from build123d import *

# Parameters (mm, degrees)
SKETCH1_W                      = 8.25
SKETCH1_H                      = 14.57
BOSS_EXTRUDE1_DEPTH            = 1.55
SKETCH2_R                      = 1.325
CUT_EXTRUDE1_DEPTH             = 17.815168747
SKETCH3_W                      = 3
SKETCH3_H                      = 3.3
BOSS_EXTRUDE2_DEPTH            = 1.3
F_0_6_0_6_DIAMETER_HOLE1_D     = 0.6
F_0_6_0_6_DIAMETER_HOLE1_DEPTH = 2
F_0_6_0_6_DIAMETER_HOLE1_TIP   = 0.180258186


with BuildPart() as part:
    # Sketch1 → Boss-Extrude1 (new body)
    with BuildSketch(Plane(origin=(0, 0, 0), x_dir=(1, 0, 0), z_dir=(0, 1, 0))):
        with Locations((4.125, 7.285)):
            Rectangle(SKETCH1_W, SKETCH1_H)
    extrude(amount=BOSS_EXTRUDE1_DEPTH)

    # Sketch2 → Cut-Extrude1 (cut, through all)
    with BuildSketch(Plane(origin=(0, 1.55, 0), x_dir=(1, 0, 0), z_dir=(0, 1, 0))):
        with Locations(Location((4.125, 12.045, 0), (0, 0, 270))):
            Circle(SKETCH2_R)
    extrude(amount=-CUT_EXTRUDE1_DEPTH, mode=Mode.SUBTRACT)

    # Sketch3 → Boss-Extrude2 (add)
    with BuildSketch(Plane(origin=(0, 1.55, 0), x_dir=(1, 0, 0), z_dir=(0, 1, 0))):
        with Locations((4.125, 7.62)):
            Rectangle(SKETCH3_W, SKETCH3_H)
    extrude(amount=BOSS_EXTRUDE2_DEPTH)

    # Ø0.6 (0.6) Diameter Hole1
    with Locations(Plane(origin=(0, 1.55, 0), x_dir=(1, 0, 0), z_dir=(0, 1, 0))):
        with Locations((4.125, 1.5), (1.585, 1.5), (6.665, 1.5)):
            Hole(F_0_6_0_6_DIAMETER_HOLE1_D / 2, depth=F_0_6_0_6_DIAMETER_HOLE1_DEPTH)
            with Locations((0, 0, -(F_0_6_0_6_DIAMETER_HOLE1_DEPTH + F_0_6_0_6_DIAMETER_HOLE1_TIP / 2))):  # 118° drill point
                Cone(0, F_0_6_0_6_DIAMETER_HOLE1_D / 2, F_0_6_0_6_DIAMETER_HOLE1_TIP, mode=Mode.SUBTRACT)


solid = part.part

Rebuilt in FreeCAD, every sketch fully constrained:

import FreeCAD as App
import Part
import Sketcher
from FreeCAD import Vector

doc = App.newDocument("Part")
params = doc.addObject("Spreadsheet::Sheet", "Params")
for row, (alias, value) in enumerate([
    ("sketch1_width", "8.25 mm"),
    ("sketch1_height", "14.57 mm"),
    ("pad1_length", "1.55 mm"),
    ("sketch2_diameter", "2.65 mm"),
    ("sketch3_width", "3 mm"),
    ("sketch3_height", "3.3 mm"),
    ("pad2_length", "1.3 mm"),
    ("sketch4_diameter", "0.6 mm"),
    ("hole_diameter", "0.6 mm"),
    ("hole_depth", "2 mm"),
], start=1):
    params.set(f"A{row}", alias)
    params.set(f"B{row}", "=" + value)
    params.setAlias(f"B{row}", alias)

body = doc.addObject("PartDesign::Body", "Body")

sketch1 = body.newObject("Sketcher::SketchObject", "Sketch")
sketch1.AttachmentSupport = (doc.getObject("XZ_Plane"), [""])
sketch1.MapMode = "FlatFace"
sketch1.addGeometry([
    Part.LineSegment(Vector(0, -14.57, 0), Vector(0, 0, 0)),
    Part.LineSegment(Vector(0, 0, 0), Vector(8.25, 0, 0)),
    Part.LineSegment(Vector(8.25, 0, 0), Vector(8.25, -14.57, 0)),
    Part.LineSegment(Vector(8.25, -14.57, 0), Vector(0, -14.57, 0)),
], False)
sketch1.addConstraint([
    Sketcher.Constraint("Coincident", 0, 2, 1, 1),
    Sketcher.Constraint("Coincident", 1, 2, 2, 1),
    Sketcher.Constraint("Coincident", 2, 2, 3, 1),
    Sketcher.Constraint("Coincident", 3, 2, 0, 1),
    Sketcher.Constraint("Vertical", 0),
    Sketcher.Constraint("Horizontal", 1),
    Sketcher.Constraint("Vertical", 2),
    Sketcher.Constraint("Horizontal", 3),
    Sketcher.Constraint("Coincident", 0, 2, -1, 1),
    Sketcher.Constraint("DistanceX", 1, 1, 1, 2, 8.25),
    Sketcher.Constraint("DistanceY", 0, 1, 0, 2, 14.57),
])
sketch1.setExpression("Constraints[9]", "Params.sketch1_width")
sketch1.setExpression("Constraints[10]", "Params.sketch1_height")
pad1 = body.newObject("PartDesign::Pad", "Pad")
pad1.Profile = sketch1
pad1.setExpression("Length", "Params.pad1_length")
pad1.Reversed = True

sketch2 = body.newObject("Sketcher::SketchObject", "Sketch001")
sketch2.AttachmentSupport = (doc.getObject("XZ_Plane"), [""])
sketch2.MapMode = "FlatFace"
sketch2.AttachmentOffset = App.Placement(Vector(0, 0, -1.55), App.Rotation())
sketch2.addGeometry(Part.Circle(Vector(4.125, -12.045, 0), Vector(0, 0, 1), 1.325), False)
sketch2.addConstraint([
    Sketcher.Constraint("Diameter", 0, 2.65),
    Sketcher.Constraint("DistanceX", -1, 1, 0, 3, 4.125),
    Sketcher.Constraint("DistanceY", 0, 3, -1, 1, 12.045),
])
sketch2.setExpression("Constraints[0]", "Params.sketch2_diameter")
pocket1 = body.newObject("PartDesign::Pocket", "Pocket")
pocket1.Profile = sketch2
pocket1.Type = "ThroughAll"
pocket1.Reversed = True

sketch3 = body.newObject("Sketcher::SketchObject", "Sketch002")
sketch3.AttachmentSupport = (doc.getObject("XZ_Plane"), [""])
sketch3.MapMode = "FlatFace"
sketch3.AttachmentOffset = App.Placement(Vector(0, 0, -1.55), App.Rotation())
sketch3.addGeometry([
    Part.LineSegment(Vector(2.625, -9.27, 0), Vector(2.625, -5.97, 0)),
    Part.LineSegment(Vector(2.625, -5.97, 0), Vector(5.625, -5.97, 0)),
    Part.LineSegment(Vector(5.625, -5.97, 0), Vector(5.625, -9.27, 0)),
    Part.LineSegment(Vector(5.625, -9.27, 0), Vector(2.625, -9.27, 0)),
], False)
sketch3.addConstraint([
    Sketcher.Constraint("Coincident", 0, 2, 1, 1),
    Sketcher.Constraint("Coincident", 1, 2, 2, 1),
    Sketcher.Constraint("Coincident", 2, 2, 3, 1),
    Sketcher.Constraint("Coincident", 3, 2, 0, 1),
    Sketcher.Constraint("Vertical", 0),
    Sketcher.Constraint("Horizontal", 1),
    Sketcher.Constraint("Vertical", 2),
    Sketcher.Constraint("Horizontal", 3),
    Sketcher.Constraint("DistanceX", 1, 1, 1, 2, 3.0),
    Sketcher.Constraint("DistanceY", 0, 1, 0, 2, 3.3),
    Sketcher.Constraint("DistanceY", 0, 2, -1, 1, 5.97),
    Sketcher.Constraint("DistanceX", -1, 1, 0, 2, 2.625),
])
sketch3.setExpression("Constraints[8]", "Params.sketch3_width")
sketch3.setExpression("Constraints[9]", "Params.sketch3_height")
pad2 = body.newObject("PartDesign::Pad", "Pad001")
pad2.Profile = sketch3
pad2.setExpression("Length", "Params.pad2_length")
pad2.Reversed = True

sketch4 = body.newObject("Sketcher::SketchObject", "Sketch003")
sketch4.AttachmentSupport = (doc.getObject("XZ_Plane"), [""])
sketch4.MapMode = "FlatFace"
sketch4.AttachmentOffset = App.Placement(Vector(0, 0, -1.55), App.Rotation())
sketch4.addGeometry([
    Part.Circle(Vector(4.125, -1.5, 0), Vector(0, 0, 1), 0.3),
    Part.Circle(Vector(1.585, -1.5, 0), Vector(0, 0, 1), 0.3),
    Part.Circle(Vector(6.665, -1.5, 0), Vector(0, 0, 1), 0.3),
], False)
sketch4.addConstraint([
    Sketcher.Constraint("Equal", 0, 1),
    Sketcher.Constraint("Equal", 1, 2),
    Sketcher.Constraint("Horizontal", 0, 3, 1, 3),
    Sketcher.Constraint("Horizontal", 1, 3, 2, 3),
    Sketcher.Constraint("Diameter", 0, 0.6),
    Sketcher.Constraint("DistanceY", 0, 3, -1, 1, 1.5),
    Sketcher.Constraint("DistanceX", 1, 3, 0, 3, 2.54),
    Sketcher.Constraint("DistanceX", 0, 3, 2, 3, 2.54),
    Sketcher.Constraint("DistanceX", -1, 1, 0, 3, 4.125),
])
sketch4.setExpression("Constraints[4]", "Params.sketch4_diameter")
doc.recompute()
hole = body.newObject("PartDesign::Hole", "Hole")
hole.Profile = sketch4
hole.ThreadType = "None"
hole.setExpression("Diameter", "Params.hole_diameter")
hole.DepthType = "Dimension"
hole.setExpression("Depth", "Params.hole_depth")
hole.DrillPoint = "Angled"
hole.DrillPointAngle = 118
hole.Reversed = True

doc.recompute()
